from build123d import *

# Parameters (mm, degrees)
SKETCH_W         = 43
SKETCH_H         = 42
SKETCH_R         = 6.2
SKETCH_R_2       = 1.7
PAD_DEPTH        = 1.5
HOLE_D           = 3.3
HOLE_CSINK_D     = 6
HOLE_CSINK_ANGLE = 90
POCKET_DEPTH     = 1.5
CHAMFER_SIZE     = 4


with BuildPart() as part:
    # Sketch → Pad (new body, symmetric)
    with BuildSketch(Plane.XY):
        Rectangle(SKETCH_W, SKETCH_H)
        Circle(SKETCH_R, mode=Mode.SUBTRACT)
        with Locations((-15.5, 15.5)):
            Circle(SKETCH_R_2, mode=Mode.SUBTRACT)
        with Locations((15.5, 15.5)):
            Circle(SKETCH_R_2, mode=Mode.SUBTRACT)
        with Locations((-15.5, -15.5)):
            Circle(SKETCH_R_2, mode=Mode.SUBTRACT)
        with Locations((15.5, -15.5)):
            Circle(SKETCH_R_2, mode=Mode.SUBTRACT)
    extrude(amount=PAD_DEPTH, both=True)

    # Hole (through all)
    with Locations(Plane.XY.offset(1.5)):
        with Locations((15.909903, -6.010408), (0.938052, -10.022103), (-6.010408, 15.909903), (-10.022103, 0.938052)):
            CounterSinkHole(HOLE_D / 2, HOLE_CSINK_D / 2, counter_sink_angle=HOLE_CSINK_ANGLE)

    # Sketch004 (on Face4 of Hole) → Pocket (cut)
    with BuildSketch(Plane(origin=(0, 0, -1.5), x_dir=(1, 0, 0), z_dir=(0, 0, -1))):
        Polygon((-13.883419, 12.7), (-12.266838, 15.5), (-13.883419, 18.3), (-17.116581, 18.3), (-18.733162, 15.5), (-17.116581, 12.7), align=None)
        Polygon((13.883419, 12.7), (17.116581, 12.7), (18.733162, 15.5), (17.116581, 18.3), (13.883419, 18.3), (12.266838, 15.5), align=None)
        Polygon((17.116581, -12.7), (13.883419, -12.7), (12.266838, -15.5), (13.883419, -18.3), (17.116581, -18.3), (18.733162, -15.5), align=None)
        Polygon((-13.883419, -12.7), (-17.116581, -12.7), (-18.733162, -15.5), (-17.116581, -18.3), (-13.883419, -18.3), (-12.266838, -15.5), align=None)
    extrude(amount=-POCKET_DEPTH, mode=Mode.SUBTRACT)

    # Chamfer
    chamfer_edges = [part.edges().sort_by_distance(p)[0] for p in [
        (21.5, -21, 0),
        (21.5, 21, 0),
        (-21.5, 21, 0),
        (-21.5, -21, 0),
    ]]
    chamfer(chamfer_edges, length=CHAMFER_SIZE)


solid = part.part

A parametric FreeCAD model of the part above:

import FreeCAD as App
import Part
import Sketcher

V = App.Vector
Q = App.Units.Quantity


def edges_at(feature, points):
    """Names of the edges that pass closest to the given points."""
    edges = feature.Shape.Edges
    near = lambda p: min(range(len(edges)), key=lambda i: edges[i].distToShape(Part.Vertex(*p))[0])
    return sorted({f"Edge{near(p) + 1}" for p in points})

doc = App.newDocument("Part")
body = doc.addObject("PartDesign::Body", "Body")

# Sketch on XY plane
sketch1 = doc.addObject("Sketcher::SketchObject", "Sketch")
body.addObject(sketch1)
sketch1.AttachmentSupport = (doc.XY_Plane, [""])
sketch1.MapMode = "FlatFace"
sketch1.addGeometry(Part.LineSegment(V(-21.5, 21, 0), V(-21.5, -21, 0)), False)
sketch1.addGeometry(Part.LineSegment(V(-21.5, -21, 0), V(21.5, -21, 0)), False)
sketch1.addGeometry(Part.LineSegment(V(21.5, -21, 0), V(21.5, 21, 0)), False)
sketch1.addGeometry(Part.LineSegment(V(21.5, 21, 0), V(-21.5, 21, 0)), False)
sketch1.addGeometry(Part.Circle(V(-15.5, -15.5, 0), V(0, 0, 1), 1.7), False)
sketch1.addGeometry(Part.Circle(V(15.5, -15.5, 0), V(0, 0, 1), 1.7), False)
sketch1.addGeometry(Part.Circle(V(-15.5, 15.5, 0), V(0, 0, 1), 1.7), False)
sketch1.addGeometry(Part.Circle(V(0, 0, 0), V(0, 0, 1), 6.2), False)
sketch1.addGeometry(Part.Circle(V(15.5, 15.5, 0), V(0, 0, 1), 1.7), False)
sketch1.addConstraint(Sketcher.Constraint("Coincident", 0, 2, 1, 1))
sketch1.addConstraint(Sketcher.Constraint("Coincident", 1, 2, 2, 1))
sketch1.addConstraint(Sketcher.Constraint("Coincident", 2, 2, 3, 1))
sketch1.addConstraint(Sketcher.Constraint("Coincident", 3, 2, 0, 1))
sketch1.addConstraint(Sketcher.Constraint("Vertical", 0))
sketch1.addConstraint(Sketcher.Constraint("Horizontal", 1))
sketch1.addConstraint(Sketcher.Constraint("Vertical", 2))
sketch1.addConstraint(Sketcher.Constraint("Horizontal", 3))
sketch1.addConstraint(Sketcher.Constraint("Coincident", 7, 3, -1, 1))
sketch1.addConstraint(Sketcher.Constraint("Equal", 4, 5))
sketch1.addConstraint(Sketcher.Constraint("Equal", 5, 6))
sketch1.addConstraint(Sketcher.Constraint("Equal", 6, 8))
sketch1.addConstraint(Sketcher.Constraint("Symmetric", 5, 3, 6, 3, -1, 1))
sketch1.addConstraint(Sketcher.Constraint("Symmetric", 4, 3, 8, 3, -1, 1))
sketch1.addConstraint(Sketcher.Constraint("Symmetric", 0, 2, 2, 2, -1, 1))
sketch1.addConstraint(Sketcher.Constraint("Symmetric", 4, 3, 5, 3, -2))
sketch1.addConstraint(Sketcher.Constraint("Diameter", 4, Q("3.4 mm")))
sketch1.addConstraint(Sketcher.Constraint("Diameter", 7, Q("12.4 mm")))
sketch1.addConstraint(Sketcher.Constraint("DistanceX", 1, 1, 1, 2, Q("43 mm")))
sketch1.addConstraint(Sketcher.Constraint("DistanceY", 0, 2, 0, 1, Q("42 mm")))
sketch1.addConstraint(Sketcher.Constraint("DistanceX", 4, 3, 5, 3, Q("31 mm")))
sketch1.addConstraint(Sketcher.Constraint("DistanceY", 4, 3, 6, 3, Q("31 mm")))
pad1 = doc.addObject("PartDesign::Pad", "Pad")
body.addObject(pad1)
pad1.Profile = sketch1
pad1.Length = 3
pad1.Midplane = True

# Sketch on XY plane
sketch2 = doc.addObject("Sketcher::SketchObject", "Sketch001")
body.addObject(sketch2)
sketch2.AttachmentSupport = (doc.XY_Plane, [""])
sketch2.MapMode = "FlatFace"
sketch2.AttachmentOffset = App.Placement(V(0, 0, 1.5), App.Rotation())
sketch2.addGeometry(Part.Circle(V(15.909903, -6.010408, 0), V(0, 0, 1), 1.65), False)
sketch2.addGeometry(Part.Circle(V(0.938052, -10.022103, 0), V(0, 0, 1), 1.65), False)
sketch2.addGeometry(Part.Circle(V(-6.010408, 15.909903, 0), V(0, 0, 1), 1.65), False)
sketch2.addGeometry(Part.Circle(V(-10.022103, 0.938052, 0), V(0, 0, 1), 1.65), False)
sketch2.addConstraint(Sketcher.Constraint("Equal", 0, 1))
sketch2.addConstraint(Sketcher.Constraint("Equal", 1, 2))
sketch2.addConstraint(Sketcher.Constraint("Equal", 2, 3))
sketch2.addConstraint(Sketcher.Constraint("Diameter", 0, Q("3.3 mm")))
sketch2.addConstraint(Sketcher.Constraint("DistanceX", -1, 1, 1, 3, Q("0.938052 mm")))
sketch2.addConstraint(Sketcher.Constraint("DistanceY", -1, 1, 3, 3, Q("0.938052 mm")))
sketch2.addConstraint(Sketcher.Constraint("DistanceX", 1, 3, 0, 3, Q("14.971851 mm")))
sketch2.addConstraint(Sketcher.Constraint("DistanceX", 2, 3, 1, 3, Q("6.94846 mm")))
sketch2.addConstraint(Sketcher.Constraint("DistanceY", 0, 3, 2, 3, Q("21.920311 mm")))
sketch2.addConstraint(Sketcher.Constraint("DistanceY", 3, 3, 2, 3, Q("14.971851 mm")))
sketch2.addConstraint(Sketcher.Constraint("DistanceY", 1, 3, -1, 1, Q("10.022103 mm")))
sketch2.addConstraint(Sketcher.Constraint("DistanceX", 3, 3, -1, 1, Q("10.022103 mm")))
doc.recompute()
hole = doc.addObject("PartDesign::Hole", "Hole")
body.addObject(hole)
hole.Profile = sketch2
hole.ThreadType = "None"
hole.Diameter = 3.3
hole.DepthType = "ThroughAll"
hole.HoleCutType = "Countersink"
hole.HoleCutDiameter = 6
hole.HoleCutCountersinkAngle = 90

# Sketch on XY plane
sketch3 = doc.addObject("Sketcher::SketchObject", "Sketch002")
body.addObject(sketch3)
sketch3.AttachmentSupport = (doc.XY_Plane, [""])
sketch3.MapMode = "FlatFace"
sketch3.AttachmentOffset = App.Placement(V(0, 0, -1.5), App.Rotation())
sketch3.addGeometry(Part.LineSegment(V(-13.883419, -12.7, 0), V(-12.266838, -15.5, 0)), False)
sketch3.addGeometry(Part.LineSegment(V(-12.266838, -15.5, 0), V(-13.883419, -18.3, 0)), False)
sketch3.addGeometry(Part.LineSegment(V(-13.883419, -18.3, 0), V(-17.116581, -18.3, 0)), False)
sketch3.addGeometry(Part.LineSegment(V(-17.116581, -18.3, 0), V(-18.733162, -15.5, 0)), False)
sketch3.addGeometry(Part.LineSegment(V(-18.733162, -15.5, 0), V(-17.116581, -12.7, 0)), False)
sketch3.addGeometry(Part.LineSegment(V(-17.116581, -12.7, 0), V(-13.883419, -12.7, 0)), False)
sketch3.addGeometry(Part.LineSegment(V(13.883419, -12.7, 0), V(17.116581, -12.7, 0)), False)
sketch3.addGeometry(Part.LineSegment(V(17.116581, -12.7, 0), V(18.733162, -15.5, 0)), False)
sketch3.addGeometry(Part.LineSegment(V(18.733162, -15.5, 0), V(17.116581, -18.3, 0)), False)
sketch3.addGeometry(Part.LineSegment(V(17.116581, -18.3, 0), V(13.883419, -18.3, 0)), False)
sketch3.addGeometry(Part.LineSegment(V(13.883419, -18.3, 0), V(12.266838, -15.5, 0)), False)
sketch3.addGeometry(Part.LineSegment(V(12.266838, -15.5, 0), V(13.883419, -12.7, 0)), False)
sketch3.addGeometry(Part.LineSegment(V(17.116581, 12.7, 0), V(13.883419, 12.7, 0)), False)
sketch3.addGeometry(Part.LineSegment(V(13.883419, 12.7, 0), V(12.266838, 15.5, 0)), False)
sketch3.addGeometry(Part.LineSegment(V(12.266838, 15.5, 0), V(13.883419, 18.3, 0)), False)
sketch3.addGeometry(Part.LineSegment(V(13.883419, 18.3, 0), V(17.116581, 18.3, 0)), False)
sketch3.addGeometry(Part.LineSegment(V(17.116581, 18.3, 0), V(18.733162, 15.5, 0)), False)
sketch3.addGeometry(Part.LineSegment(V(18.733162, 15.5, 0), V(17.116581, 12.7, 0)), False)
sketch3.addGeometry(Part.LineSegment(V(-13.883419, 12.7, 0), V(-17.116581, 12.7, 0)), False)
sketch3.addGeometry(Part.LineSegment(V(-17.116581, 12.7, 0), V(-18.733162, 15.5, 0)), False)
sketch3.addGeometry(Part.LineSegment(V(-18.733162, 15.5, 0), V(-17.116581, 18.3, 0)), False)
sketch3.addGeometry(Part.LineSegment(V(-17.116581, 18.3, 0), V(-13.883419, 18.3, 0)), False)
sketch3.addGeometry(Part.LineSegment(V(-13.883419, 18.3, 0), V(-12.266838, 15.5, 0)), False)
sketch3.addGeometry(Part.LineSegment(V(-12.266838, 15.5, 0), V(-13.883419, 12.7, 0)), False)
sketch3.addConstraint(Sketcher.Constraint("Coincident", 0, 2, 1, 1))
sketch3.addConstraint(Sketcher.Constraint("Coincident", 1, 2, 2, 1))
sketch3.addConstraint(Sketcher.Constraint("Coincident", 2, 2, 3, 1))
sketch3.addConstraint(Sketcher.Constraint("Coincident", 3, 2, 4, 1))
sketch3.addConstraint(Sketcher.Constraint("Coincident", 4, 2, 5, 1))
sketch3.addConstraint(Sketcher.Constraint("Coincident", 5, 2, 0, 1))
sketch3.addConstraint(Sketcher.Constraint("Coincident", 6, 2, 7, 1))
sketch3.addConstraint(Sketcher.Constraint("Coincident", 7, 2, 8, 1))
sketch3.addConstraint(Sketcher.Constraint("Coincident", 8, 2, 9, 1))
sketch3.addConstraint(Sketcher.Constraint("Coincident", 9, 2, 10, 1))
sketch3.addConstraint(Sketcher.Constraint("Coincident", 10, 2, 11, 1))
sketch3.addConstraint(Sketcher.Constraint("Coincident", 11, 2, 6, 1))
sketch3.addConstraint(Sketcher.Constraint("Coincident", 12, 2, 13, 1))
sketch3.addConstraint(Sketcher.Constraint("Coincident", 13, 2, 14, 1))
sketch3.addConstraint(Sketcher.Constraint("Coincident", 14, 2, 15, 1))
sketch3.addConstraint(Sketcher.Constraint("Coincident", 15, 2, 16, 1))
sketch3.addConstraint(Sketcher.Constraint("Coincident", 16, 2, 17, 1))
sketch3.addConstraint(Sketcher.Constraint("Coincident", 17, 2, 12, 1))
sketch3.addConstraint(Sketcher.Constraint("Coincident", 18, 2, 19, 1))
sketch3.addConstraint(Sketcher.Constraint("Coincident", 19, 2, 20, 1))
sketch3.addConstraint(Sketcher.Constraint("Coincident", 20, 2, 21, 1))
sketch3.addConstraint(Sketcher.Constraint("Coincident", 21, 2, 22, 1))
sketch3.addConstraint(Sketcher.Constraint("Coincident", 22, 2, 23, 1))
sketch3.addConstraint(Sketcher.Constraint("Coincident", 23, 2, 18, 1))
sketch3.addConstraint(Sketcher.Constraint("Horizontal", 2))
sketch3.addConstraint(Sketcher.Constraint("Horizontal", 5))
sketch3.addConstraint(Sketcher.Constraint("Horizontal", 6))
sketch3.addConstraint(Sketcher.Constraint("Horizontal", 9))
sketch3.addConstraint(Sketcher.Constraint("Horizontal", 12))
sketch3.addConstraint(Sketcher.Constraint("Horizontal", 15))
sketch3.addConstraint(Sketcher.Constraint("Horizontal", 18))
sketch3.addConstraint(Sketcher.Constraint("Horizontal", 21))
sketch3.addConstraint(Sketcher.Constraint("Symmetric", 5, 2, 12, 2, -1, 1))
sketch3.addConstraint(Sketcher.Constraint("Symmetric", 0, 2, 13, 2, -1, 1))
sketch3.addConstraint(Sketcher.Constraint("Symmetric", 1, 2, 14, 2, -1, 1))
sketch3.addConstraint(Sketcher.Constraint("Symmetric", 3, 2, 16, 2, -1, 1))
sketch3.addConstraint(Sketcher.Constraint("Symmetric", 6, 2, 18, 2, -1, 1))
sketch3.addConstraint(Sketcher.Constraint("Symmetric", 7, 2, 19, 2, -1, 1))
sketch3.addConstraint(Sketcher.Constraint("Symmetric", 8, 2, 20, 2, -1, 1))
sketch3.addConstraint(Sketcher.Constraint("Symmetric", 10, 2, 22, 2, -1, 1))
sketch3.addConstraint(Sketcher.Constraint("Symmetric", 4, 2, 6, 2, -2))
sketch3.addConstraint(Sketcher.Constraint("Symmetric", 3, 2, 7, 2, -2))
sketch3.addConstraint(Sketcher.Constraint("Symmetric", 2, 2, 8, 2, -2))
sketch3.addConstraint(Sketcher.Constraint("Symmetric", 0, 2, 10, 2, -2))
sketch3.addConstraint(Sketcher.Constraint("Parallel", 0, 3))
sketch3.addConstraint(Sketcher.Constraint("Parallel", 1, 4))
sketch3.addConstraint(Sketcher.Constraint("Parallel", 3, 7))
sketch3.addConstraint(Sketcher.Constraint("Parallel", 7, 10))
sketch3.addConstraint(Sketcher.Constraint("Parallel", 8, 11))
sketch3.addConstraint(Sketcher.Constraint("Parallel", 13, 16))
sketch3.addConstraint(Sketcher.Constraint("Parallel", 14, 17))
sketch3.addConstraint(Sketcher.Constraint("Parallel", 19, 22))
sketch3.addConstraint(Sketcher.Constraint("Parallel", 20, 23))
sketch3.addConstraint(Sketcher.Constraint("Horizontal", 0, 2, 3, 2))
sketch3.addConstraint(Sketcher.Constraint("Vertical", 2, 2, 4, 2))
sketch3.addConstraint(Sketcher.Constraint("Angle", 0, Q("-59.999996 deg")))
sketch3.addConstraint(Sketcher.Constraint("DistanceX", 5, 2, 6, 2, Q("31 mm")))
sketch3.addConstraint(Sketcher.Constraint("DistanceY", 9, 2, 12, 2, Q("31 mm")))
sketch3.addConstraint(Sketcher.Constraint("DistanceY", 1, 2, -1, 1, Q("18.3 mm")))
sketch3.addConstraint(Sketcher.Constraint("DistanceX", 2, 2, 2, 1, Q("3.233162 mm")))
pocket1 = doc.addObject("PartDesign::Pocket", "Pocket")
body.addObject(pocket1)
pocket1.Profile = sketch3
pocket1.Length = 1.5
pocket1.Reversed = True
doc.recompute()

chamfer = doc.addObject("PartDesign::Chamfer", "Chamfer")
body.addObject(chamfer)
chamfer.Base = (pocket1, edges_at(pocket1, [
    (21.5, -21, 0),
    (21.5, 21, 0),
    (-21.5, 21, 0),
    (-21.5, -21, 0),
]))
chamfer.Size = 4

doc.recompute()
